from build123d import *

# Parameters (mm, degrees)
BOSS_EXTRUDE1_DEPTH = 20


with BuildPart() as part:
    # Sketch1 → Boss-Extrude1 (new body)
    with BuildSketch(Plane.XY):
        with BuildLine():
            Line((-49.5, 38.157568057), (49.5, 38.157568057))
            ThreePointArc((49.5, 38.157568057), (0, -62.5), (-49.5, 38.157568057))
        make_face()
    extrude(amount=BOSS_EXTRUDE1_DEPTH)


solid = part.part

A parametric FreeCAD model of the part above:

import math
import FreeCAD as App
import Part
import Sketcher

V = App.Vector

doc = App.newDocument("Part")
body = doc.addObject("PartDesign::Body", "Body")

sketch1 = body.newObject("Sketcher::SketchObject", "Sketch")
sketch1.AttachmentSupport = (doc.getObject("XY_Plane"), [""])
sketch1.MapMode = "FlatFace"
sketch1.addGeometry(Part.LineSegment(V(50, 38, 0), V(-50, 38, 0)), False)
sketch1.addGeometry(Part.ArcOfCircle(Part.Circle(V(0, 0, 0), V(0, 0, 1), 62), math.radians(142), math.radians(398)), False)
sketch1.addConstraint(Sketcher.Constraint("Coincident", 0, 1, 1, 2))
sketch1.addConstraint(Sketcher.Constraint("Coincident", 1, 1, 0, 2))
sketch1.addConstraint(Sketcher.Constraint("Horizontal", 0))
sketch1.addConstraint(Sketcher.Constraint("Coincident", 1, 3, -1, 1))
sketch1.addConstraint(Sketcher.Constraint("Radius", 1, 62.5))
sketch1.addConstraint(Sketcher.Constraint("DistanceX", 0, 2, 0, 1, 99.0))
pad1 = body.newObject("PartDesign::Pad", "Pad")
pad1.Profile = sketch1
pad1.Length = 20

doc.recompute()
